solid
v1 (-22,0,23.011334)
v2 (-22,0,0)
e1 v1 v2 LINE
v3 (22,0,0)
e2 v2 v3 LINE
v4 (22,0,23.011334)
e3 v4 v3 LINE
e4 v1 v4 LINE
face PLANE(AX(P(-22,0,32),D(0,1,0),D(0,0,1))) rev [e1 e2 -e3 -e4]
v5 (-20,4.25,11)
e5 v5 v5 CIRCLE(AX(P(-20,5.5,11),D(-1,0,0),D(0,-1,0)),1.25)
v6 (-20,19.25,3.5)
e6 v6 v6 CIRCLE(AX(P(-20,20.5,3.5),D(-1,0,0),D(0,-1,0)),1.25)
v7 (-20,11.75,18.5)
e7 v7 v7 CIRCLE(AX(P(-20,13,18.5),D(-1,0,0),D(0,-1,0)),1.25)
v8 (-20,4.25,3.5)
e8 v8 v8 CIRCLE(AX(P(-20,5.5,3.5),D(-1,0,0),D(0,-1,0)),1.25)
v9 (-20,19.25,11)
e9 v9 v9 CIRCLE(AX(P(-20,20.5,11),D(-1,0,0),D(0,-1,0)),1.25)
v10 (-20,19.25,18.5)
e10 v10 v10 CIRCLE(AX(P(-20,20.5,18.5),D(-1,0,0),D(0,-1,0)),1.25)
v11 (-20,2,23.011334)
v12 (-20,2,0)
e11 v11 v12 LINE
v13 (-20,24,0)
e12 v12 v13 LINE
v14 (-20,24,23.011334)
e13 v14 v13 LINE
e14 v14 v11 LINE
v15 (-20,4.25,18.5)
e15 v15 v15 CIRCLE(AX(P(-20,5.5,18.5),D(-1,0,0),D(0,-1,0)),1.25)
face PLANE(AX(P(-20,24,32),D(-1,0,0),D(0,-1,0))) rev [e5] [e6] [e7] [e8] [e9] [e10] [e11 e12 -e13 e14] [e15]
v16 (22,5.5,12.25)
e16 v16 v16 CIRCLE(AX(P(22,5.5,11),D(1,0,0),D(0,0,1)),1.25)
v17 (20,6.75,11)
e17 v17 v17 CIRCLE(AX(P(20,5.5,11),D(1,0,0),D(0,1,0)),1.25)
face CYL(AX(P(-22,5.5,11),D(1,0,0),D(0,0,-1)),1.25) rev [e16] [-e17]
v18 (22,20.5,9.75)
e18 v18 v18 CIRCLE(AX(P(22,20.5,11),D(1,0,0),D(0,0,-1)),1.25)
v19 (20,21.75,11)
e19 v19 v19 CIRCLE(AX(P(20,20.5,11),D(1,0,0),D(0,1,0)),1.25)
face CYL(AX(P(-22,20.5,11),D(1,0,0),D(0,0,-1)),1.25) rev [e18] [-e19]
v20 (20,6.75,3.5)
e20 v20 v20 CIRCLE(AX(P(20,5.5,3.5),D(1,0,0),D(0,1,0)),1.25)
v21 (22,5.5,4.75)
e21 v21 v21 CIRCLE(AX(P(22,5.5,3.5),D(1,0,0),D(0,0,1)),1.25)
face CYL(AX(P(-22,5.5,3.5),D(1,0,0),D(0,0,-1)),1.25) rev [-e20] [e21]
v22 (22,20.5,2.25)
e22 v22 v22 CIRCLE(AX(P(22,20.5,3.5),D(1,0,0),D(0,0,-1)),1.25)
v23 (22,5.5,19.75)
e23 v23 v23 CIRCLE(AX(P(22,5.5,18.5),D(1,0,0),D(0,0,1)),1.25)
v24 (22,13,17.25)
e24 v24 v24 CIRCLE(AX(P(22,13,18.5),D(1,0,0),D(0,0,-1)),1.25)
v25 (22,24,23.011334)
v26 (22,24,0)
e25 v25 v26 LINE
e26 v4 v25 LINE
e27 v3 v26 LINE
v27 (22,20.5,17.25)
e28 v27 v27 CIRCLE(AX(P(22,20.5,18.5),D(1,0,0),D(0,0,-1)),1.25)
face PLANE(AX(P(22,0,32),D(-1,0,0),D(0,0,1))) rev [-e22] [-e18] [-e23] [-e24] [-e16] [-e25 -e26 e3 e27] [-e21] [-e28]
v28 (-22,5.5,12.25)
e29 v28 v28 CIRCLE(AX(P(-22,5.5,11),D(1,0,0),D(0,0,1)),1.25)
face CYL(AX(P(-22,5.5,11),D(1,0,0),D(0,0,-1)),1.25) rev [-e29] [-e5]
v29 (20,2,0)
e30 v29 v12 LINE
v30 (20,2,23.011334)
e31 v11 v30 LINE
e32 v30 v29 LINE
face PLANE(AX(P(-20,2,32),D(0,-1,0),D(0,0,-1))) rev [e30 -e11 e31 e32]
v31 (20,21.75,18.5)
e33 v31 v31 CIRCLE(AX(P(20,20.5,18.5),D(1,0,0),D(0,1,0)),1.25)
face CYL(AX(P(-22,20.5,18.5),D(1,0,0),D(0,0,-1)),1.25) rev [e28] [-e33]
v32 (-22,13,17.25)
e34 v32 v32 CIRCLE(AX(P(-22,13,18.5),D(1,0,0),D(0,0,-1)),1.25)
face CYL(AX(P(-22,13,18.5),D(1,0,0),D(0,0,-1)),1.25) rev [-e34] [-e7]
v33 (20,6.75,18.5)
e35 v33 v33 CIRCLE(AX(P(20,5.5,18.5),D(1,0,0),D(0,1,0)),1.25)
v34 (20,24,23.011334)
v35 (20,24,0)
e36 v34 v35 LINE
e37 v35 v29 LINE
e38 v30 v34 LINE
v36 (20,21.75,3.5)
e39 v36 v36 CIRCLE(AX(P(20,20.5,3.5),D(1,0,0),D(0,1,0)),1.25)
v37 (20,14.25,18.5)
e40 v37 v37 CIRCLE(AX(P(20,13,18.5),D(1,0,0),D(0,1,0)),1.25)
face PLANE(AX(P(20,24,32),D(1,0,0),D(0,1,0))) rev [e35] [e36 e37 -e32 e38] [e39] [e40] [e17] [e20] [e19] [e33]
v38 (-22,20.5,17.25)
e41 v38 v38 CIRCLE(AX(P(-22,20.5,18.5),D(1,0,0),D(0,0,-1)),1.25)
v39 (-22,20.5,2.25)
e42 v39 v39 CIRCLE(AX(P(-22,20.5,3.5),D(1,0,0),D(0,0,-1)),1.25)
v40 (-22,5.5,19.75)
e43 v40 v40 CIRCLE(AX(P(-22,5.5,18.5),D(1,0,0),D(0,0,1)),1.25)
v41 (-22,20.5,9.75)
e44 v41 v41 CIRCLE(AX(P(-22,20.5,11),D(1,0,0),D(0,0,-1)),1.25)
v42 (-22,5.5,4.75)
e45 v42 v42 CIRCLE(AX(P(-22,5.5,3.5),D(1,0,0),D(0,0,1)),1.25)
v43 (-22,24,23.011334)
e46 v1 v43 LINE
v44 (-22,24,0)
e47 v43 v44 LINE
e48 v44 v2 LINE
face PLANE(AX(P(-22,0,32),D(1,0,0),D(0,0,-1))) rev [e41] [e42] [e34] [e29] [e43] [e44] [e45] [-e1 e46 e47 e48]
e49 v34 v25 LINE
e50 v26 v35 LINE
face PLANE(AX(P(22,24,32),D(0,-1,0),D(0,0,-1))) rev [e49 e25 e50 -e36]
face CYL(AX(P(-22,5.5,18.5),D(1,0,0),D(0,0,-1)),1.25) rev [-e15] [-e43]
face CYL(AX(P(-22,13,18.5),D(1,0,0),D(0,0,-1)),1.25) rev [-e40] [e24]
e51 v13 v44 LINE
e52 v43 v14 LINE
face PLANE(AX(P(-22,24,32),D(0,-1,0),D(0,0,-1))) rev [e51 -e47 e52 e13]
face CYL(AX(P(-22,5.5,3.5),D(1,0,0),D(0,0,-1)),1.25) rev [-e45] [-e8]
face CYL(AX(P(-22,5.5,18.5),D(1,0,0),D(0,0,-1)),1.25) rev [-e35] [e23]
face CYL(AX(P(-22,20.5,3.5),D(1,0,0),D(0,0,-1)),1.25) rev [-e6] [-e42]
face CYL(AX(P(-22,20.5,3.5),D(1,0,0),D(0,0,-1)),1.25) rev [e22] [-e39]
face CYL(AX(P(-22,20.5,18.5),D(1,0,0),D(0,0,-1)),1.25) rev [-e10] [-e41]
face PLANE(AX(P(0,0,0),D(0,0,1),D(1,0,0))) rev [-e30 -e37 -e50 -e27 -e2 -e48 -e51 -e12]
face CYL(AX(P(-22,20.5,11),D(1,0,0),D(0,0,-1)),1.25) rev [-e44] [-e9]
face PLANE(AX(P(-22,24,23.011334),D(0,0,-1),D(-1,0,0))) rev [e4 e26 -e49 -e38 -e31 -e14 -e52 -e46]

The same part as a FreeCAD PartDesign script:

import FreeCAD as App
import Part
import Sketcher


def add_polygon(sketch, points):
    """Adds a closed chain of lines whose ends are joined by coincident constraints."""
    first, n = sketch.GeometryCount, len(points)
    for a, b in zip(points, points[1:] + points[:1]):
        sketch.addGeometry(Part.LineSegment(App.Vector(*a, 0), App.Vector(*b, 0)), False)
    for i in range(n):
        sketch.addConstraint(Sketcher.Constraint("Coincident", first + i, 2, first + (i + 1) % n, 1))

doc = App.newDocument("Part")
body = doc.addObject("PartDesign::Body", "Body")

# Sketch on XY plane
sketch1 = body.newObject("Sketcher::SketchObject", "Sketch")
sketch1.AttachmentSupport = (doc.getObject("XY_Plane"), [""])
sketch1.MapMode = "FlatFace"
add_polygon(sketch1, [(-22, 0), (22, 0), (22, 24), (20, 24), (20, 2), (-20, 2), (-20, 24), (-22, 24)])  # lines 0-7
sketch1.addConstraint(Sketcher.Constraint("Horizontal", 0))
sketch1.addConstraint(Sketcher.Constraint("Vertical", 1))
sketch1.addConstraint(Sketcher.Constraint("Horizontal", 2))
sketch1.addConstraint(Sketcher.Constraint("Vertical", 3))
sketch1.addConstraint(Sketcher.Constraint("Horizontal", 4))
sketch1.addConstraint(Sketcher.Constraint("Vertical", 5))
sketch1.addConstraint(Sketcher.Constraint("Horizontal", 6))
sketch1.addConstraint(Sketcher.Constraint("Vertical", 7))
sketch1.addConstraint(Sketcher.Constraint("Symmetric", 0, 2, 7, 2, -1, 1))
sketch1.addConstraint(Sketcher.Constraint("Symmetric", 2, 2, 5, 2, -2))
sketch1.addConstraint(Sketcher.Constraint("DistanceX", 0, 1, 0, 2, 44.0))
sketch1.addConstraint(Sketcher.Constraint("DistanceX", 2, 2, 2, 1, 2.0))
sketch1.addConstraint(Sketcher.Constraint("DistanceY", 1, 1, 1, 2, 24.0))
sketch1.addConstraint(Sketcher.Constraint("DistanceY", 3, 2, 3, 1, 22.0))
pad1 = body.newObject("PartDesign::Pad", "Pad")
pad1.Profile = sketch1
pad1.Length = 32

# Sketch on YZ plane
sketch2 = body.newObject("Sketcher::SketchObject", "Sketch001")
sketch2.AttachmentSupport = (doc.getObject("YZ_Plane"), [""])
sketch2.MapMode = "FlatFace"
sketch2.AttachmentOffset = App.Placement(App.Vector(0, 0, 22), App.Rotation())
sketch2.addGeometry(Part.Circle(App.Vector(20.5, 3.5, 0), App.Vector(0, 0, 1), 1.2), False)
sketch2.addGeometry(Part.Circle(App.Vector(20.5, 18.5, 0), App.Vector(0, 0, 1), 1.2), False)
sketch2.addGeometry(Part.Circle(App.Vector(20.5, 11, 0), App.Vector(0, 0, 1), 1.2), False)
sketch2.addGeometry(Part.Circle(App.Vector(5.5, 3.5, 0), App.Vector(0, 0, 1), 1.2), False)
sketch2.addGeometry(Part.Circle(App.Vector(5.5, 11, 0), App.Vector(0, 0, 1), 1.2), False)
sketch2.addGeometry(Part.Circle(App.Vector(5.5, 18.5, 0), App.Vector(0, 0, 1), 1.2), False)
sketch2.addGeometry(Part.Circle(App.Vector(13, 18.5, 0), App.Vector(0, 0, 1), 1.2), False)
sketch2.addConstraint(Sketcher.Constraint("Equal", 0, 1))
sketch2.addConstraint(Sketcher.Constraint("Equal", 1, 2))
sketch2.addConstraint(Sketcher.Constraint("Equal", 2, 3))
sketch2.addConstraint(Sketcher.Constraint("Equal", 3, 4))
sketch2.addConstraint(Sketcher.Constraint("Equal", 4, 5))
sketch2.addConstraint(Sketcher.Constraint("Equal", 5, 6))
sketch2.addConstraint(Sketcher.Constraint("Horizontal", 0, 3, 3, 3))
sketch2.addConstraint(Sketcher.Constraint("Horizontal", 2, 3, 4, 3))
sketch2.addConstraint(Sketcher.Constraint("Horizontal", 1, 3, 5, 3))
sketch2.addConstraint(Sketcher.Constraint("Horizontal", 5, 3, 6, 3))
sketch2.addConstraint(Sketcher.Constraint("Vertical", 0, 3, 1, 3))
sketch2.addConstraint(Sketcher.Constraint("Vertical", 1, 3, 2, 3))
sketch2.addConstraint(Sketcher.Constraint("Vertical", 3, 3, 4, 3))
sketch2.addConstraint(Sketcher.Constraint("Vertical", 4, 3, 5, 3))
sketch2.addConstraint(Sketcher.Constraint("Diameter", 0, 2.5))
sketch2.addConstraint(Sketcher.Constraint("DistanceY", -1, 1, 2, 3, 11.0))
sketch2.addConstraint(Sketcher.Constraint("DistanceX", -1, 1, 6, 3, 13.0))
sketch2.addConstraint(Sketcher.Constraint("DistanceY", 0, 3, 1, 3, 15.0))
sketch2.addConstraint(Sketcher.Constraint("DistanceX", 3, 3, 0, 3, 15.0))
sketch2.addConstraint(Sketcher.Constraint("DistanceX", -1, 1, 0, 3, 20.5))
sketch2.addConstraint(Sketcher.Constraint("DistanceY", -1, 1, 0, 3, 3.5))
pocket1 = body.newObject("PartDesign::Pocket", "Pocket")
pocket1.Profile = sketch2
pocket1.Type = "ThroughAll"

# Sketch on XZ plane
sketch3 = body.newObject("Sketcher::SketchObject", "Sketch002")
sketch3.AttachmentSupport = (doc.getObject("XZ_Plane"), [""])
sketch3.MapMode = "FlatFace"
sketch3.AttachmentOffset = App.Placement(App.Vector(0, 0, -2), App.Rotation())
sketch3.addGeometry(Part.Circle(App.Vector(-15, 27, 0), App.Vector(0, 0, 1), 2.2), False)
sketch3.addGeometry(Part.Circle(App.Vector(15, 27, 0), App.Vector(0, 0, 1), 2.2), False)
sketch3.addConstraint(Sketcher.Constraint("Equal", 0, 1))
sketch3.addConstraint(Sketcher.Constraint("Symmetric", 0, 3, 1, 3, -2))
sketch3.addConstraint(Sketcher.Constraint("Diameter", 0, 4.4))
sketch3.addConstraint(Sketcher.Constraint("DistanceX", 0, 3, -1, 1, 15.0))
sketch3.addConstraint(Sketcher.Constraint("DistanceY", -1, 1, 0, 3, 27.0))
pocket2 = body.newObject("PartDesign::Pocket", "Pocket001")
pocket2.Profile = sketch3
pocket2.Type = "ThroughAll"
pocket2.Reversed = True

# Sketch on YZ plane
sketch4 = body.newObject("Sketcher::SketchObject", "Sketch003")
sketch4.AttachmentSupport = (doc.getObject("YZ_Plane"), [""])
sketch4.MapMode = "FlatFace"
sketch4.AttachmentOffset = App.Placement(App.Vector(0, 0, 22), App.Rotation())
add_polygon(sketch4, [(24, 32), (0, 32), (0, 23), (24, 23)])  # lines 0-3
sketch4.addConstraint(Sketcher.Constraint("Horizontal", 0))
sketch4.addConstraint(Sketcher.Constraint("Vertical", 1))
sketch4.addConstraint(Sketcher.Constraint("Horizontal", 2))
sketch4.addConstraint(Sketcher.Constraint("Vertical", 3))
sketch4.addConstraint(Sketcher.Constraint("PointOnObject", 0, 2, -2))
sketch4.addConstraint(Sketcher.Constraint("DistanceX", 0, 2, 0, 1, 24.0))
sketch4.addConstraint(Sketcher.Constraint("DistanceY", -1, 1, 0, 2, 32.0))
sketch4.addConstraint(Sketcher.Constraint("DistanceY", 1, 2, 1, 1, 8.988666))
pocket3 = body.newObject("PartDesign::Pocket", "Pocket002")
pocket3.Profile = sketch4
pocket3.Type = "ThroughAll"

doc.recompute()
